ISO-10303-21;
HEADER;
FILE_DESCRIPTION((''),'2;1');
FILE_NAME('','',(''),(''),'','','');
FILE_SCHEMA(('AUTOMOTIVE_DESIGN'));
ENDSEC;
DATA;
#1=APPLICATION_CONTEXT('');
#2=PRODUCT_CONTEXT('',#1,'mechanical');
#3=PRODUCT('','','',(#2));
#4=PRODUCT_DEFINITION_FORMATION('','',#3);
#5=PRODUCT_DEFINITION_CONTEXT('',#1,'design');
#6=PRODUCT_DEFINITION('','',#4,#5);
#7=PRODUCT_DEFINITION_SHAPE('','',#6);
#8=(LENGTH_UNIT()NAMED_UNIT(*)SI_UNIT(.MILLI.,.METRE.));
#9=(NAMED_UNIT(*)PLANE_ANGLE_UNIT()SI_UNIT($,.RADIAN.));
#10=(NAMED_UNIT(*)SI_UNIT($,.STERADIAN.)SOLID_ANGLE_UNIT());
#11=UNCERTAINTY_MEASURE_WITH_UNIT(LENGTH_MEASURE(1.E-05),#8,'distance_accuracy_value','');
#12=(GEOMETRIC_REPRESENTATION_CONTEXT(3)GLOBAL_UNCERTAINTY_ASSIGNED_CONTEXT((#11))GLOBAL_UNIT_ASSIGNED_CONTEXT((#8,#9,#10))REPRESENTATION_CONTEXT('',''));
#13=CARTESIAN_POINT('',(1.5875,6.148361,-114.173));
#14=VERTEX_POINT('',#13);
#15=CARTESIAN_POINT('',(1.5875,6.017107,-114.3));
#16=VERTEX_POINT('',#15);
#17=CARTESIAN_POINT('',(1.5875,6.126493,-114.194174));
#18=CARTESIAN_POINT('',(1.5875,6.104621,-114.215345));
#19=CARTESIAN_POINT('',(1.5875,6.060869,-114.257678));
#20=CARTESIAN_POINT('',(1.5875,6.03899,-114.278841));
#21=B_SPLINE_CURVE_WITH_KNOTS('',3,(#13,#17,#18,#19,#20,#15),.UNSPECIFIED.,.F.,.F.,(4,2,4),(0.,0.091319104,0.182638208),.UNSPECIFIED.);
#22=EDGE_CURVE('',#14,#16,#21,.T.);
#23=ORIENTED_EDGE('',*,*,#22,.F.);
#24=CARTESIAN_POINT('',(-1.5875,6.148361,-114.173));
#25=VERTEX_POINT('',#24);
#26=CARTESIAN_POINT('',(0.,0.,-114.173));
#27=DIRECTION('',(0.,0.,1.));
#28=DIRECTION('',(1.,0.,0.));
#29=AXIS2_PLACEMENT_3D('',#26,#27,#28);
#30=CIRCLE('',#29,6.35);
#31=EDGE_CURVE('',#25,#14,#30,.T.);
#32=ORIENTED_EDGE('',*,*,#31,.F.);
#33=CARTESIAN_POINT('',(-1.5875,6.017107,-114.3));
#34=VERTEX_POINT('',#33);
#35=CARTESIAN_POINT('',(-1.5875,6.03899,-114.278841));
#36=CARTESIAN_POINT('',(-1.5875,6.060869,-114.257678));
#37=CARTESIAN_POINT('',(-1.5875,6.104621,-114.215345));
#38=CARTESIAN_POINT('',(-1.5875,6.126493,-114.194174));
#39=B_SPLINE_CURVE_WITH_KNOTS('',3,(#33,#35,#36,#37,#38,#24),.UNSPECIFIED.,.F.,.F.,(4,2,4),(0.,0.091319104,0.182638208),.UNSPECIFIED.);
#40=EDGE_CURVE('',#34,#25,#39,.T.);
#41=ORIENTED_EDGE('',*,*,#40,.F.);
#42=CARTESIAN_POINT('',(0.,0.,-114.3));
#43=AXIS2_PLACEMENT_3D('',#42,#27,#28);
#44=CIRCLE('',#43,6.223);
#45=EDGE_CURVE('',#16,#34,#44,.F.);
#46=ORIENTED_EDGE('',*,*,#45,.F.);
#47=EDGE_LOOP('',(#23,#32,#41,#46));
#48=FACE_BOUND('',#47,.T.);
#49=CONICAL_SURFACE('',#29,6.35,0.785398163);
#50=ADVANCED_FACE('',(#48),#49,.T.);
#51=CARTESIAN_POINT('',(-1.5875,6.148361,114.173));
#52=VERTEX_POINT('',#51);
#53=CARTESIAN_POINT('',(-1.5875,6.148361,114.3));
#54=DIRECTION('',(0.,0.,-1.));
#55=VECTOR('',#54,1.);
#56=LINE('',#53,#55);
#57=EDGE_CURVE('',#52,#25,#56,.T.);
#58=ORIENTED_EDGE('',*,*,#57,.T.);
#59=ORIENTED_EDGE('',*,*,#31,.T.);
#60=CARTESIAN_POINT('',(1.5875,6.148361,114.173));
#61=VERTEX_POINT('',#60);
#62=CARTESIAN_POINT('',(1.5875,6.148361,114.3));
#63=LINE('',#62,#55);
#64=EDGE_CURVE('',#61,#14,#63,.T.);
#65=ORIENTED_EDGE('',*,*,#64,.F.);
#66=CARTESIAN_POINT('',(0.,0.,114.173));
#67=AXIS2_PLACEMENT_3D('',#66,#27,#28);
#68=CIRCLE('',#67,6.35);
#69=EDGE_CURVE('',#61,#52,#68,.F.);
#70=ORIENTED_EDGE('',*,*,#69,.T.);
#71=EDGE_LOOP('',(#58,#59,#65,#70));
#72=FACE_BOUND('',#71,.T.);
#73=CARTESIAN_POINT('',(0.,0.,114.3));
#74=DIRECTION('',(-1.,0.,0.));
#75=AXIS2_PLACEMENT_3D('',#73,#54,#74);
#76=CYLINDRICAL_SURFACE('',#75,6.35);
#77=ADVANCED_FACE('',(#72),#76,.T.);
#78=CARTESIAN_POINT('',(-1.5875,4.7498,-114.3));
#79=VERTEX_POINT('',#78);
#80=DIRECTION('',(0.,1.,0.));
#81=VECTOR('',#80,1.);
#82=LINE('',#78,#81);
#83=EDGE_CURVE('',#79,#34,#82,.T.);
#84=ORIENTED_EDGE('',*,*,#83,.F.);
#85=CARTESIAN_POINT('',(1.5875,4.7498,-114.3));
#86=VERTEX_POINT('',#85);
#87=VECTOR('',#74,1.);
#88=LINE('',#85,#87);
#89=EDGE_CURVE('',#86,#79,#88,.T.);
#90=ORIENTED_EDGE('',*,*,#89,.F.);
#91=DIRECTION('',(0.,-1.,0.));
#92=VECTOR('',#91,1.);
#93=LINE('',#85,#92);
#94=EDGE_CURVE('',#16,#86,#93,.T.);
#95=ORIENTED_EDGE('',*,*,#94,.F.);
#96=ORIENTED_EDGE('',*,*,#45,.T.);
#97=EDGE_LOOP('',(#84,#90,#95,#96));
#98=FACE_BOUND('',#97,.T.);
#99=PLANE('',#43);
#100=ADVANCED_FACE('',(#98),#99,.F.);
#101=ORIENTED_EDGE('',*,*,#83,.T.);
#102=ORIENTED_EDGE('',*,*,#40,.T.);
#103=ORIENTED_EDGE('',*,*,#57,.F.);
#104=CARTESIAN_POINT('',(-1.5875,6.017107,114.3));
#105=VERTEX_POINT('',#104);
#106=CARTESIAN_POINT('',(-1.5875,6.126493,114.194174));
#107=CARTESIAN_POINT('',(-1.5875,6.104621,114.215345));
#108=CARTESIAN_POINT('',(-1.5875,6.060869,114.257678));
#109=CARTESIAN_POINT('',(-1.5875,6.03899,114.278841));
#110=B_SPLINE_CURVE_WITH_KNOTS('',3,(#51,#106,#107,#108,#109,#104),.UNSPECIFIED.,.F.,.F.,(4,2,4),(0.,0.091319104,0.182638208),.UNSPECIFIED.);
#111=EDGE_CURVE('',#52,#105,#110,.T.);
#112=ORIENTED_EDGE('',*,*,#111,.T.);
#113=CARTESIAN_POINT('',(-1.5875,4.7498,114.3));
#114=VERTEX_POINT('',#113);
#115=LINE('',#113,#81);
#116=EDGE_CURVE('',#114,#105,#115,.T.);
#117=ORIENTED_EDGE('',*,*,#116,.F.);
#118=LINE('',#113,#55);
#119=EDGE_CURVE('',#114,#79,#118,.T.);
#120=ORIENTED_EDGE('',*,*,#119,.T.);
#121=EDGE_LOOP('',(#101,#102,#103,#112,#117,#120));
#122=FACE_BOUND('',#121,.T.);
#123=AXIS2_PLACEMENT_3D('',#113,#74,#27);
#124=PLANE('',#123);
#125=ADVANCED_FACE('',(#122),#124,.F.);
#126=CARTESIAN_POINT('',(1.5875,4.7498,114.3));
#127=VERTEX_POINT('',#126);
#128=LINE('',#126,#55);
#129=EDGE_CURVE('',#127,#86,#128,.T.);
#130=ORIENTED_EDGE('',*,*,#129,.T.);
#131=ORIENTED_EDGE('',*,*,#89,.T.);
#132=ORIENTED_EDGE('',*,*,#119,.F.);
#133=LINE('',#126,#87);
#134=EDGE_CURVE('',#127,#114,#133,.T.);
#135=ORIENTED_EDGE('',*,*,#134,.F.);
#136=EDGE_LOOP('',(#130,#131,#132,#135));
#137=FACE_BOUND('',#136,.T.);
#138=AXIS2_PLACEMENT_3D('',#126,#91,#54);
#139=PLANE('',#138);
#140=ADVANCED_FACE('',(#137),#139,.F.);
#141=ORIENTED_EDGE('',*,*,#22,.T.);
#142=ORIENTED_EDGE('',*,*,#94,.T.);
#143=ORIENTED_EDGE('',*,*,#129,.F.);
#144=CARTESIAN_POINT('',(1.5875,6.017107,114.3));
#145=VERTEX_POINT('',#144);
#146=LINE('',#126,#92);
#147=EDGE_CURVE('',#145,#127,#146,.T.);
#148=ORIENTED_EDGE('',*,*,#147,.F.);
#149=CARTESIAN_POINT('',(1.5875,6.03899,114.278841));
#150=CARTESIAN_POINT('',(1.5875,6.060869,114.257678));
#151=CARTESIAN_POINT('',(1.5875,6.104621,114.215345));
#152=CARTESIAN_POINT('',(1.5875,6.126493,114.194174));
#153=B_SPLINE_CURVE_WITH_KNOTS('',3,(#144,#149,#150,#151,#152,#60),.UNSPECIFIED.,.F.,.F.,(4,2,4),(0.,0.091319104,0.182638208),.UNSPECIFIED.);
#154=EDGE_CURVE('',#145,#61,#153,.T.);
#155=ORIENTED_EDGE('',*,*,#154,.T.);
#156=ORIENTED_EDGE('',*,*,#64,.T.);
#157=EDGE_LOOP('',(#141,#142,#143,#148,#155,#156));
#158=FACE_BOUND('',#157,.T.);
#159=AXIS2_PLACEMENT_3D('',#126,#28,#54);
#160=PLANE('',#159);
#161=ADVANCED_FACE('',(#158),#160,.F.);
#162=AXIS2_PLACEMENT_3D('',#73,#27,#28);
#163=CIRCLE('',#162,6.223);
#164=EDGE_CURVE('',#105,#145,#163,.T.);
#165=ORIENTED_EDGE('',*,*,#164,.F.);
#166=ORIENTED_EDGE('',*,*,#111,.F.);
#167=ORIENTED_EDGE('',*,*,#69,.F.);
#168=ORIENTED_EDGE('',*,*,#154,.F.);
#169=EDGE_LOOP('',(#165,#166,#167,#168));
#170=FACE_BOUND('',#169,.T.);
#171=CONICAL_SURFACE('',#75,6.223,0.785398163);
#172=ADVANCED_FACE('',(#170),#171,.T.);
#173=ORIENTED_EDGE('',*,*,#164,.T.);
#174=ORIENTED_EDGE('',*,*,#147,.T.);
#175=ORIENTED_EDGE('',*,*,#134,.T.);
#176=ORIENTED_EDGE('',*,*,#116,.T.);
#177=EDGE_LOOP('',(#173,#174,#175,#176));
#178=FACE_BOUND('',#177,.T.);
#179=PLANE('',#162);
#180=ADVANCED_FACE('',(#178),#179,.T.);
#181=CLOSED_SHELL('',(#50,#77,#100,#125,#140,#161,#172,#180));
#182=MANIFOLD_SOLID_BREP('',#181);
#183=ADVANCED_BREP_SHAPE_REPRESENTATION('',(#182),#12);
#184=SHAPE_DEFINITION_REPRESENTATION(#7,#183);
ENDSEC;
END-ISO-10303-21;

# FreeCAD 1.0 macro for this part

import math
import FreeCAD as App
import Part
import Sketcher
Q = App.Units.Quantity


def edges_at(feature, points):
    """Names of the edges that pass closest to the given points."""
    edges = feature.Shape.Edges
    near = lambda p: min(range(len(edges)), key=lambda i: edges[i].distToShape(Part.Vertex(*p))[0])
    return sorted({f"Edge{near(p) + 1}" for p in points})

doc = App.newDocument("Part")
body = doc.addObject("PartDesign::Body", "Body")

# Sketch on XY plane
sketch1 = body.newObject("Sketcher::SketchObject", "Sketch")
sketch1.AttachmentSupport = (doc.getObject("XY_Plane"), [""])
sketch1.MapMode = "FlatFace"
sketch1.addGeometry(Part.LineSegment(App.Vector(-1.6, 4.7, 0), App.Vector(-1.6, 6.1, 0)), False)
sketch1.addGeometry(Part.ArcOfCircle(Part.Circle(App.Vector(0, 0, 0), App.Vector(0, 0, 1), 6.3), math.radians(104), math.radians(436)), False)
sketch1.addGeometry(Part.LineSegment(App.Vector(1.6, 6.1, 0), App.Vector(1.6, 4.7, 0)), False)
sketch1.addGeometry(Part.LineSegment(App.Vector(1.6, 4.7, 0), App.Vector(-1.6, 4.7, 0)), False)
sketch1.addConstraint(Sketcher.Constraint("Coincident", 0, 2, 1, 1))
sketch1.addConstraint(Sketcher.Constraint("Coincident", 1, 2, 2, 1))
sketch1.addConstraint(Sketcher.Constraint("Coincident", 2, 2, 3, 1))
sketch1.addConstraint(Sketcher.Constraint("Coincident", 3, 2, 0, 1))
sketch1.addConstraint(Sketcher.Constraint("Vertical", 0))
sketch1.addConstraint(Sketcher.Constraint("Vertical", 2))
sketch1.addConstraint(Sketcher.Constraint("Horizontal", 3))
sketch1.addConstraint(Sketcher.Constraint("Coincident", 1, 3, -1, 1))
sketch1.addConstraint(Sketcher.Constraint("Horizontal", 0, 2, 1, 2))
sketch1.addConstraint(Sketcher.Constraint("Radius", 1, Q("0.25 in")))
sketch1.addConstraint(Sketcher.Constraint("DistanceX", 3, 2, 3, 1, Q("0.125 in")))
sketch1.addConstraint(Sketcher.Constraint("DistanceY", -1, 1, 2, 2, Q("0.187 in")))
pad1 = body.newObject("PartDesign::Pad", "Pad")
pad1.Profile = sketch1
pad1.Type = "TwoLengths"
pad1.Length = Q("4.5 in")
pad1.Length2 = Q("4.5 in")
doc.recompute()

chamfer = body.newObject("PartDesign::Chamfer", "Chamfer")
chamfer.Base = (pad1, edges_at(pad1, [(0, -6.35, -114.3), (0, -6.35, 114.3)]))
chamfer.Size = Q("0.005 in")

doc.recompute()
